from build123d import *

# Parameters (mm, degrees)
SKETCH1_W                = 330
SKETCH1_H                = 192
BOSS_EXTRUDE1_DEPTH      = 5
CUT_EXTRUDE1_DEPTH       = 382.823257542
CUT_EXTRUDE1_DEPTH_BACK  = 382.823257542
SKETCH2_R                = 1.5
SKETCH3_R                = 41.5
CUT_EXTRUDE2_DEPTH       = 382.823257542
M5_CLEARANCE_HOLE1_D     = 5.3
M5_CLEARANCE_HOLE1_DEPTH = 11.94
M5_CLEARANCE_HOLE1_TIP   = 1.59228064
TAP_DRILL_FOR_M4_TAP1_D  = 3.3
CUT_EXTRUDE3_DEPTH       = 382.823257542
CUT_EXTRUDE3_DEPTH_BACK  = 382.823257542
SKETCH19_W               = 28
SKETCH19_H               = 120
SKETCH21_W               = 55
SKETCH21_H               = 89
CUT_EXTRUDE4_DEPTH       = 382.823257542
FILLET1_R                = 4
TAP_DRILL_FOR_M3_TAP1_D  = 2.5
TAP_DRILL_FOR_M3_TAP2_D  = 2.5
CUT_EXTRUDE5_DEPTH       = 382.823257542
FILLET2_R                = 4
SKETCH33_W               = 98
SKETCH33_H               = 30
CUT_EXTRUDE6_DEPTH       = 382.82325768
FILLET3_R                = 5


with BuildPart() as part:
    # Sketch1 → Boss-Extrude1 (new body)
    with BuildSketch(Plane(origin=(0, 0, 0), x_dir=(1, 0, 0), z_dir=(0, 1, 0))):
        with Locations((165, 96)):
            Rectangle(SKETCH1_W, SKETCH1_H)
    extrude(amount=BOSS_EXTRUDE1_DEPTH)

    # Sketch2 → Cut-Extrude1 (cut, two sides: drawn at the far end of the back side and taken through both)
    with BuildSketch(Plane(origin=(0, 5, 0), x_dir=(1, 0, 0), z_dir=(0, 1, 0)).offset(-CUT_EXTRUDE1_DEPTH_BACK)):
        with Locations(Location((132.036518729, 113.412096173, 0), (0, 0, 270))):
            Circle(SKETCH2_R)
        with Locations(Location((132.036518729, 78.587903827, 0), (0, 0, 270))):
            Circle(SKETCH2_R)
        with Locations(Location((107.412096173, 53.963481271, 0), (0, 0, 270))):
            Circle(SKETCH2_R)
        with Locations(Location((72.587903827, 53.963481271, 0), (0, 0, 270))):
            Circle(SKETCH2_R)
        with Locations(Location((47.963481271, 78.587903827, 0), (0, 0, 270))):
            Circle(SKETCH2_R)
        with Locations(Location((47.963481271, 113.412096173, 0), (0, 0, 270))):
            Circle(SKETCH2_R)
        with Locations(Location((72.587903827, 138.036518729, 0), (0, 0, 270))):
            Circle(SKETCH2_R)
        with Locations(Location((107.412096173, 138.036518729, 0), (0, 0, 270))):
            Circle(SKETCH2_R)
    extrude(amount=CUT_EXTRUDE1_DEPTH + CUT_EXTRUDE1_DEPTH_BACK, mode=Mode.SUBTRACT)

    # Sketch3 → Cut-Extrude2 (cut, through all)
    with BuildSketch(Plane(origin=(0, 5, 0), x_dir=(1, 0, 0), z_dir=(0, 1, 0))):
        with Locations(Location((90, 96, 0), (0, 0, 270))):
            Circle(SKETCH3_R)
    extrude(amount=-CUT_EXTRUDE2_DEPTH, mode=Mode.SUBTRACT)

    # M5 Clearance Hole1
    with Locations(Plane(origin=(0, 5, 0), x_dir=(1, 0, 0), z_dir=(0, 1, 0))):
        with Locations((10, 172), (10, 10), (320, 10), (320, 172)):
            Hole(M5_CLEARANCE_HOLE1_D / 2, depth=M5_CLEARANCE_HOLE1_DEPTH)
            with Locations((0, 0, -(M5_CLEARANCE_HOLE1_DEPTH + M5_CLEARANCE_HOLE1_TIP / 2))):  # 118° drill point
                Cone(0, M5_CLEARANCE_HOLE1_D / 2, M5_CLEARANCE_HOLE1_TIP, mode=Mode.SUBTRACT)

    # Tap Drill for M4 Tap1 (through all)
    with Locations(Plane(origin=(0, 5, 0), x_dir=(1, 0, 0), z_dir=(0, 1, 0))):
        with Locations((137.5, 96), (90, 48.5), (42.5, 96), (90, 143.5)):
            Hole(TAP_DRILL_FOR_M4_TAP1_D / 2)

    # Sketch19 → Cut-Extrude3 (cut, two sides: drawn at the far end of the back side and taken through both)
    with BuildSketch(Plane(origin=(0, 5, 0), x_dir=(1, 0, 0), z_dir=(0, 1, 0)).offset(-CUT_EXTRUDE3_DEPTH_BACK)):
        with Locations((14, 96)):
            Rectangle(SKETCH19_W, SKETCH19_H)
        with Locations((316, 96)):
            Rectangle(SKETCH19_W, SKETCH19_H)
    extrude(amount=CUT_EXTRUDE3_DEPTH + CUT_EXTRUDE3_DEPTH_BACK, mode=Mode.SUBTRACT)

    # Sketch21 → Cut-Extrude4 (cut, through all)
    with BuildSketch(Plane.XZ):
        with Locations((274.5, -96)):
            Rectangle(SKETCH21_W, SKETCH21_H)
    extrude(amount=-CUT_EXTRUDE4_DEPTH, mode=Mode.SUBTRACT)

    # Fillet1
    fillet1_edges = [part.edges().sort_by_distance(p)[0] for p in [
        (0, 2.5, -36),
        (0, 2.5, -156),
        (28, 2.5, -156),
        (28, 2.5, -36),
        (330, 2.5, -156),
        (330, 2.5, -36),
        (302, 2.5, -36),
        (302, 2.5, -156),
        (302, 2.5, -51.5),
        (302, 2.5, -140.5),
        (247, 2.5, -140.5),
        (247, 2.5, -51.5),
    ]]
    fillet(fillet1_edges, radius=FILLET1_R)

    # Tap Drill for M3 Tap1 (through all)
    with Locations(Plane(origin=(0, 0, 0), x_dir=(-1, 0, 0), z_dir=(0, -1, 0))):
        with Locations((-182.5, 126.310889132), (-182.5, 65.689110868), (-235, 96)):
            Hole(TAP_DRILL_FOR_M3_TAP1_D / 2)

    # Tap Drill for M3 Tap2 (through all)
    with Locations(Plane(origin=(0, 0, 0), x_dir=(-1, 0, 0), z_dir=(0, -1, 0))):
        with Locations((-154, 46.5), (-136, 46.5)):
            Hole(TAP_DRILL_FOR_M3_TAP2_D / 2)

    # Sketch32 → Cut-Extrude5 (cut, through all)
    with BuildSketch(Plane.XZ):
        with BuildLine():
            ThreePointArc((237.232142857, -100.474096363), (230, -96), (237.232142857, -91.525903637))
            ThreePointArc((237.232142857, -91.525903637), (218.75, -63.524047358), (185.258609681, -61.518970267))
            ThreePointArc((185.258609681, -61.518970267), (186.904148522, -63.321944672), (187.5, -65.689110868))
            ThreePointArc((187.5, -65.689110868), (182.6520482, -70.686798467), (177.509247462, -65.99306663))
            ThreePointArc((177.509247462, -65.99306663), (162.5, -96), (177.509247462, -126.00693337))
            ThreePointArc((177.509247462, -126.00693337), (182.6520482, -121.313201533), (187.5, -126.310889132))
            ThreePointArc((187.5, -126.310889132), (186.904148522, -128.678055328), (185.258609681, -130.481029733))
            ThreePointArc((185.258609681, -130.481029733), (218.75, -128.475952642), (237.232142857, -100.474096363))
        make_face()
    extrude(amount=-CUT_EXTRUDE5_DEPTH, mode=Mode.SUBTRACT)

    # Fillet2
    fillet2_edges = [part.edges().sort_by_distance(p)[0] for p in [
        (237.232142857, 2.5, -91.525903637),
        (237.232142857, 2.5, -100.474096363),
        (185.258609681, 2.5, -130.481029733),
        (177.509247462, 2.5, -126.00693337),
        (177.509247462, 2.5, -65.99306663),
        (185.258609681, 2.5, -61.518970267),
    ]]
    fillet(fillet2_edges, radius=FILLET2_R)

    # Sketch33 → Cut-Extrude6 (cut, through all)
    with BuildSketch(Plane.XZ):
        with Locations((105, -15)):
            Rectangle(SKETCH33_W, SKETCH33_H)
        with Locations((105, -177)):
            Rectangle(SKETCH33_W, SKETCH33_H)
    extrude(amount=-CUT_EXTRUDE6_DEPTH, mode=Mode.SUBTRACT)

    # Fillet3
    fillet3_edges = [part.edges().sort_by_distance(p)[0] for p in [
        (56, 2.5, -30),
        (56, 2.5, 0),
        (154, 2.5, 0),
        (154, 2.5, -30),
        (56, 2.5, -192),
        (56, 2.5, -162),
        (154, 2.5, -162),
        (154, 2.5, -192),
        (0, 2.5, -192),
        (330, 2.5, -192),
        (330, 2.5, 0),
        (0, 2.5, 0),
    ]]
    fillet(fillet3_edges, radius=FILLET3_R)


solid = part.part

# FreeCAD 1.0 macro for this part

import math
import FreeCAD as App
import Part
import Sketcher
Q = App.Units.Quantity


def edges_at(feature, points):
    """Names of the edges that pass closest to the given points."""
    edges = feature.Shape.Edges
    near = lambda p: min(range(len(edges)), key=lambda i: edges[i].distToShape(Part.Vertex(*p))[0])
    return sorted({f"Edge{near(p) + 1}" for p in points})


def add_polygon(sketch, points):
    """Adds a closed chain of lines whose ends are joined by coincident constraints."""
    first, n = sketch.GeometryCount, len(points)
    for a, b in zip(points, points[1:] + points[:1]):
        sketch.addGeometry(Part.LineSegment(App.Vector(*a, 0), App.Vector(*b, 0)), False)
    for i in range(n):
        sketch.addConstraint(Sketcher.Constraint("Coincident", first + i, 2, first + (i + 1) % n, 1))

doc = App.newDocument("Part")
body = doc.addObject("PartDesign::Body", "Body")

# Sketch on XZ plane
sketch1 = doc.addObject("Sketcher::SketchObject", "Sketch")
body.addObject(sketch1)
sketch1.AttachmentSupport = (doc.XZ_Plane, [""])
sketch1.MapMode = "FlatFace"
add_polygon(sketch1, [(0, -192), (0, 0), (330, 0), (330, -192)])  # lines 0-3
sketch1.addConstraint(Sketcher.Constraint("Vertical", 0))
sketch1.addConstraint(Sketcher.Constraint("Horizontal", 1))
sketch1.addConstraint(Sketcher.Constraint("Vertical", 2))
sketch1.addConstraint(Sketcher.Constraint("Horizontal", 3))
sketch1.addConstraint(Sketcher.Constraint("Coincident", 0, 2, -1, 1))
sketch1.addConstraint(Sketcher.Constraint("DistanceX", 1, 1, 1, 2, Q("330 mm")))
sketch1.addConstraint(Sketcher.Constraint("DistanceY", 0, 1, 0, 2, Q("192 mm")))
pad1 = doc.addObject("PartDesign::Pad", "Pad")
body.addObject(pad1)
pad1.Profile = sketch1
pad1.Length = 5
pad1.Reversed = True

# Sketch on XZ plane
sketch2 = doc.addObject("Sketcher::SketchObject", "Sketch001")
body.addObject(sketch2)
sketch2.AttachmentSupport = (doc.XZ_Plane, [""])
sketch2.MapMode = "FlatFace"
sketch2.AttachmentOffset = App.Placement(App.Vector(0, 0, -5), App.Rotation())
sketch2.addGeometry(Part.Circle(App.Vector(132, -113.4, 0), App.Vector(0, 0, 1), 1.5), False)
sketch2.addGeometry(Part.Circle(App.Vector(132, -78.6, 0), App.Vector(0, 0, 1), 1.5), False)
sketch2.addGeometry(Part.Circle(App.Vector(107.4, -54, 0), App.Vector(0, 0, 1), 1.5), False)
sketch2.addGeometry(Part.Circle(App.Vector(72.6, -54, 0), App.Vector(0, 0, 1), 1.5), False)
sketch2.addGeometry(Part.Circle(App.Vector(48, -78.6, 0), App.Vector(0, 0, 1), 1.5), False)
sketch2.addGeometry(Part.Circle(App.Vector(48, -113.4, 0), App.Vector(0, 0, 1), 1.5), False)
sketch2.addGeometry(Part.Circle(App.Vector(72.6, -138, 0), App.Vector(0, 0, 1), 1.5), False)
sketch2.addGeometry(Part.Circle(App.Vector(107.4, -138, 0), App.Vector(0, 0, 1), 1.5), False)
sketch2.addConstraint(Sketcher.Constraint("Equal", 0, 1))
sketch2.addConstraint(Sketcher.Constraint("Equal", 1, 2))
sketch2.addConstraint(Sketcher.Constraint("Equal", 2, 3))
sketch2.addConstraint(Sketcher.Constraint("Equal", 3, 4))
sketch2.addConstraint(Sketcher.Constraint("Equal", 4, 5))
sketch2.addConstraint(Sketcher.Constraint("Equal", 5, 6))
sketch2.addConstraint(Sketcher.Constraint("Equal", 6, 7))
sketch2.addConstraint(Sketcher.Constraint("Horizontal", 2, 3, 3, 3))
sketch2.addConstraint(Sketcher.Constraint("Horizontal", 1, 3, 4, 3))
sketch2.addConstraint(Sketcher.Constraint("Horizontal", 0, 3, 5, 3))
sketch2.addConstraint(Sketcher.Constraint("Horizontal", 6, 3, 7, 3))
sketch2.addConstraint(Sketcher.Constraint("Vertical", 0, 3, 1, 3))
sketch2.addConstraint(Sketcher.Constraint("Vertical", 4, 3, 5, 3))
sketch2.addConstraint(Sketcher.Constraint("Vertical", 3, 3, 6, 3))
sketch2.addConstraint(Sketcher.Constraint("Vertical", 2, 3, 7, 3))
sketch2.addConstraint(Sketcher.Constraint("Diameter", 0, Q("3 mm")))
sketch2.addConstraint(Sketcher.Constraint("DistanceX", -1, 1, 0, 3, Q("132.036519 mm")))
sketch2.addConstraint(Sketcher.Constraint("DistanceY", 2, 3, -1, 1, Q("53.963481 mm")))
sketch2.addConstraint(Sketcher.Constraint("DistanceX", -1, 1, 4, 3, Q("47.963481 mm")))
sketch2.addConstraint(Sketcher.Constraint("DistanceY", 6, 3, -1, 1, Q("138.036519 mm")))
sketch2.addConstraint(Sketcher.Constraint("DistanceY", 0, 3, -1, 1, Q("113.412096 mm")))
sketch2.addConstraint(Sketcher.Constraint("DistanceY", 1, 3, -1, 1, Q("78.587904 mm")))
sketch2.addConstraint(Sketcher.Constraint("DistanceX", -1, 1, 2, 3, Q("107.412096 mm")))
sketch2.addConstraint(Sketcher.Constraint("DistanceX", -1, 1, 3, 3, Q("72.587904 mm")))
pocket1 = doc.addObject("PartDesign::Pocket", "Pocket")
body.addObject(pocket1)
pocket1.Profile = sketch2
pocket1.Type = "ThroughAll"
pocket1.Midplane = True

# Sketch on XZ plane
sketch3 = doc.addObject("Sketcher::SketchObject", "Sketch002")
body.addObject(sketch3)
sketch3.AttachmentSupport = (doc.XZ_Plane, [""])
sketch3.MapMode = "FlatFace"
sketch3.AttachmentOffset = App.Placement(App.Vector(0, 0, -5), App.Rotation())
sketch3.addGeometry(Part.Circle(App.Vector(90, -96, 0), App.Vector(0, 0, 1), 42), False)
sketch3.addConstraint(Sketcher.Constraint("Diameter", 0, Q("83 mm")))
sketch3.addConstraint(Sketcher.Constraint("DistanceX", -1, 1, 0, 3, Q("90 mm")))
sketch3.addConstraint(Sketcher.Constraint("DistanceY", 0, 3, -1, 1, Q("96 mm")))
pocket2 = doc.addObject("PartDesign::Pocket", "Pocket001")
body.addObject(pocket2)
pocket2.Profile = sketch3
pocket2.Type = "ThroughAll"
pocket2.Reversed = True

# Sketch on XZ plane
sketch4 = doc.addObject("Sketcher::SketchObject", "Sketch003")
body.addObject(sketch4)
sketch4.AttachmentSupport = (doc.XZ_Plane, [""])
sketch4.MapMode = "FlatFace"
sketch4.AttachmentOffset = App.Placement(App.Vector(0, 0, -5), App.Rotation())
sketch4.addGeometry(Part.Circle(App.Vector(10, -172, 0), App.Vector(0, 0, 1), 2.6), False)
sketch4.addGeometry(Part.Circle(App.Vector(10, -10, 0), App.Vector(0, 0, 1), 2.6), False)
sketch4.addGeometry(Part.Circle(App.Vector(320, -10, 0), App.Vector(0, 0, 1), 2.6), False)
sketch4.addGeometry(Part.Circle(App.Vector(320, -172, 0), App.Vector(0, 0, 1), 2.6), False)
sketch4.addConstraint(Sketcher.Constraint("Equal", 0, 1))
sketch4.addConstraint(Sketcher.Constraint("Equal", 1, 2))
sketch4.addConstraint(Sketcher.Constraint("Equal", 2, 3))
sketch4.addConstraint(Sketcher.Constraint("Horizontal", 1, 3, 2, 3))
sketch4.addConstraint(Sketcher.Constraint("Horizontal", 0, 3, 3, 3))
sketch4.addConstraint(Sketcher.Constraint("Vertical", 0, 3, 1, 3))
sketch4.addConstraint(Sketcher.Constraint("Vertical", 2, 3, 3, 3))
sketch4.addConstraint(Sketcher.Constraint("Diameter", 0, Q("5.3 mm")))
sketch4.addConstraint(Sketcher.Constraint("DistanceX", -1, 1, 0, 3, Q("10 mm")))
sketch4.addConstraint(Sketcher.Constraint("DistanceY", 0, 3, -1, 1, Q("172 mm")))
sketch4.addConstraint(Sketcher.Constraint("DistanceY", 1, 3, -1, 1, Q("10 mm")))
sketch4.addConstraint(Sketcher.Constraint("DistanceX", -1, 1, 2, 3, Q("320 mm")))
doc.recompute()
hole = doc.addObject("PartDesign::Hole", "Hole")
body.addObject(hole)
hole.Profile = sketch4
hole.ThreadType = "None"
hole.Diameter = 5.3
hole.DepthType = "Dimension"
hole.Depth = 11.94
hole.DrillPoint = "Angled"
hole.DrillPointAngle = 118
hole.Reversed = True

# Sketch on XZ plane
sketch5 = doc.addObject("Sketcher::SketchObject", "Sketch004")
body.addObject(sketch5)
sketch5.AttachmentSupport = (doc.XZ_Plane, [""])
sketch5.MapMode = "FlatFace"
sketch5.AttachmentOffset = App.Placement(App.Vector(0, 0, -5), App.Rotation())
sketch5.addGeometry(Part.Circle(App.Vector(137.5, -96, 0), App.Vector(0, 0, 1), 1.6), False)
sketch5.addGeometry(Part.Circle(App.Vector(90, -48.5, 0), App.Vector(0, 0, 1), 1.6), False)
sketch5.addGeometry(Part.Circle(App.Vector(42.5, -96, 0), App.Vector(0, 0, 1), 1.6), False)
sketch5.addGeometry(Part.Circle(App.Vector(90, -143.5, 0), App.Vector(0, 0, 1), 1.6), False)
sketch5.addConstraint(Sketcher.Constraint("Equal", 0, 1))
sketch5.addConstraint(Sketcher.Constraint("Equal", 1, 2))
sketch5.addConstraint(Sketcher.Constraint("Equal", 2, 3))
sketch5.addConstraint(Sketcher.Constraint("Horizontal", 0, 3, 2, 3))
sketch5.addConstraint(Sketcher.Constraint("Vertical", 1, 3, 3, 3))
sketch5.addConstraint(Sketcher.Constraint("Diameter", 0, Q("3.3 mm")))
sketch5.addConstraint(Sketcher.Constraint("DistanceY", 0, 3, -1, 1, Q("96 mm")))
sketch5.addConstraint(Sketcher.Constraint("DistanceX", -1, 1, 1, 3, Q("90 mm")))
sketch5.addConstraint(Sketcher.Constraint("DistanceX", 2, 3, 0, 3, Q("95 mm")))
sketch5.addConstraint(Sketcher.Constraint("DistanceY", 3, 3, 1, 3, Q("95 mm")))
sketch5.addConstraint(Sketcher.Constraint("DistanceX", -1, 1, 0, 3, Q("137.5 mm")))
sketch5.addConstraint(Sketcher.Constraint("DistanceY", 1, 3, -1, 1, Q("48.5 mm")))
doc.recompute()
hole2 = doc.addObject("PartDesign::Hole", "Hole001")
body.addObject(hole2)
hole2.Profile = sketch5
hole2.ThreadType = "None"
hole2.Diameter = 3.3
hole2.DepthType = "ThroughAll"
hole2.Reversed = True

# Sketch on XZ plane
sketch6 = doc.addObject("Sketcher::SketchObject", "Sketch005")
body.addObject(sketch6)
sketch6.AttachmentSupport = (doc.XZ_Plane, [""])
sketch6.MapMode = "FlatFace"
sketch6.AttachmentOffset = App.Placement(App.Vector(0, 0, -5), App.Rotation())
add_polygon(sketch6, [(0, -156), (0, -36), (28, -36), (28, -156)])  # lines 0-3
add_polygon(sketch6, [(302, -156), (302, -36), (330, -36), (330, -156)])  # lines 4-7
sketch6.addConstraint(Sketcher.Constraint("Vertical", 0))
sketch6.addConstraint(Sketcher.Constraint("Horizontal", 1))
sketch6.addConstraint(Sketcher.Constraint("Vertical", 2))
sketch6.addConstraint(Sketcher.Constraint("Horizontal", 3))
sketch6.addConstraint(Sketcher.Constraint("Vertical", 4))
sketch6.addConstraint(Sketcher.Constraint("Horizontal", 5))
sketch6.addConstraint(Sketcher.Constraint("Vertical", 6))
sketch6.addConstraint(Sketcher.Constraint("Horizontal", 7))
sketch6.addConstraint(Sketcher.Constraint("PointOnObject", 0, 2, -2))
sketch6.addConstraint(Sketcher.Constraint("Horizontal", 1, 2, 4, 2))
sketch6.addConstraint(Sketcher.Constraint("Horizontal", 3, 2, 6, 2))
sketch6.addConstraint(Sketcher.Constraint("Equal", 3, 5))
sketch6.addConstraint(Sketcher.Constraint("DistanceX", 1, 1, 1, 2, Q("28 mm")))
sketch6.addConstraint(Sketcher.Constraint("DistanceY", 0, 1, 0, 2, Q("120 mm")))
sketch6.addConstraint(Sketcher.Constraint("DistanceY", 0, 2, -1, 1, Q("36 mm")))
sketch6.addConstraint(Sketcher.Constraint("DistanceX", -1, 1, 4, 2, Q("302 mm")))
pocket3 = doc.addObject("PartDesign::Pocket", "Pocket002")
body.addObject(pocket3)
pocket3.Profile = sketch6
pocket3.Type = "ThroughAll"
pocket3.Midplane = True

# Sketch on XZ plane
sketch7 = doc.addObject("Sketcher::SketchObject", "Sketch006")
body.addObject(sketch7)
sketch7.AttachmentSupport = (doc.XZ_Plane, [""])
sketch7.MapMode = "FlatFace"
add_polygon(sketch7, [(247, -52), (247, -140), (302, -140), (302, -52)])  # lines 0-3
sketch7.addConstraint(Sketcher.Constraint("Vertical", 0))
sketch7.addConstraint(Sketcher.Constraint("Horizontal", 1))
sketch7.addConstraint(Sketcher.Constraint("Vertical", 2))
sketch7.addConstraint(Sketcher.Constraint("Horizontal", 3))
sketch7.addConstraint(Sketcher.Constraint("DistanceX", 1, 1, 1, 2, Q("55 mm")))
sketch7.addConstraint(Sketcher.Constraint("DistanceY", 0, 2, 0, 1, Q("89 mm")))
sketch7.addConstraint(Sketcher.Constraint("DistanceX", -1, 1, 0, 2, Q("247 mm")))
sketch7.addConstraint(Sketcher.Constraint("DistanceY", 0, 2, -1, 1, Q("140.5 mm")))
pocket4 = doc.addObject("PartDesign::Pocket", "Pocket003")
body.addObject(pocket4)
pocket4.Profile = sketch7
pocket4.Type = "ThroughAll"
doc.recompute()

fillet = doc.addObject("PartDesign::Fillet", "Fillet")
body.addObject(fillet)
fillet.Base = (pocket4, edges_at(pocket4, [
    (0, 2.5, -36),
    (0, 2.5, -156),
    (28, 2.5, -156),
    (28, 2.5, -36),
    (330, 2.5, -156),
    (330, 2.5, -36),
    (302, 2.5, -36),
    (302, 2.5, -156),
    (302, 2.5, -51.5),
    (302, 2.5, -140.5),
    (247, 2.5, -140.5),
    (247, 2.5, -51.5),
]))
fillet.Radius = 4

# Sketch on XZ plane
sketch8 = doc.addObject("Sketcher::SketchObject", "Sketch007")
body.addObject(sketch8)
sketch8.AttachmentSupport = (doc.XZ_Plane, [""])
sketch8.MapMode = "FlatFace"
sketch8.addGeometry(Part.Circle(App.Vector(182.5, -126.3, 0), App.Vector(0, 0, 1), 1.2), False)
sketch8.addGeometry(Part.Circle(App.Vector(182.5, -65.7, 0), App.Vector(0, 0, 1), 1.2), False)
sketch8.addGeometry(Part.Circle(App.Vector(235, -96, 0), App.Vector(0, 0, 1), 1.2), False)
sketch8.addConstraint(Sketcher.Constraint("Equal", 0, 1))
sketch8.addConstraint(Sketcher.Constraint("Equal", 1, 2))
sketch8.addConstraint(Sketcher.Constraint("Vertical", 0, 3, 1, 3))
sketch8.addConstraint(Sketcher.Constraint("Diameter", 0, Q("2.5 mm")))
sketch8.addConstraint(Sketcher.Constraint("DistanceX", -1, 1, 2, 3, Q("235 mm")))
sketch8.addConstraint(Sketcher.Constraint("DistanceY", 2, 3, -1, 1, Q("96 mm")))
sketch8.addConstraint(Sketcher.Constraint("DistanceX", -1, 1, 0, 3, Q("182.5 mm")))
sketch8.addConstraint(Sketcher.Constraint("DistanceY", 0, 3, -1, 1, Q("126.310889 mm")))
sketch8.addConstraint(Sketcher.Constraint("DistanceY", 1, 3, -1, 1, Q("65.689111 mm")))
doc.recompute()
hole3 = doc.addObject("PartDesign::Hole", "Hole002")
body.addObject(hole3)
hole3.Profile = sketch8
hole3.ThreadType = "None"
hole3.Diameter = 2.5
hole3.DepthType = "ThroughAll"

# Sketch on XZ plane
sketch9 = doc.addObject("Sketcher::SketchObject", "Sketch008")
body.addObject(sketch9)
sketch9.AttachmentSupport = (doc.XZ_Plane, [""])
sketch9.MapMode = "FlatFace"
sketch9.addGeometry(Part.Circle(App.Vector(154, -46.5, 0), App.Vector(0, 0, 1), 1.2), False)
sketch9.addGeometry(Part.Circle(App.Vector(136, -46.5, 0), App.Vector(0, 0, 1), 1.2), False)
sketch9.addConstraint(Sketcher.Constraint("Equal", 0, 1))
sketch9.addConstraint(Sketcher.Constraint("Horizontal", 0, 3, 1, 3))
sketch9.addConstraint(Sketcher.Constraint("Diameter", 0, Q("2.5 mm")))
sketch9.addConstraint(Sketcher.Constraint("DistanceX", -1, 1, 0, 3, Q("154 mm")))
sketch9.addConstraint(Sketcher.Constraint("DistanceX", -1, 1, 1, 3, Q("136 mm")))
sketch9.addConstraint(Sketcher.Constraint("DistanceY", 0, 3, -1, 1, Q("46.5 mm")))
doc.recompute()
hole4 = doc.addObject("PartDesign::Hole", "Hole003")
body.addObject(hole4)
hole4.Profile = sketch9
hole4.ThreadType = "None"
hole4.Diameter = 2.5
hole4.DepthType = "ThroughAll"

# Sketch on XZ plane
sketch10 = doc.addObject("Sketcher::SketchObject", "Sketch009")
body.addObject(sketch10)
sketch10.AttachmentSupport = (doc.XZ_Plane, [""])
sketch10.MapMode = "FlatFace"
sketch10.addGeometry(Part.ArcOfCircle(Part.Circle(App.Vector(235, -96, 0), App.Vector(0, 0, 1), 5), math.radians(63), math.radians(297)), False)
sketch10.addGeometry(Part.ArcOfCircle(Part.Circle(App.Vector(200, -96, 0), App.Vector(0, 0, 1), 37.5), math.radians(7), math.radians(113)), False)
sketch10.addGeometry(Part.ArcOfCircle(Part.Circle(App.Vector(182.5, -65.7, 0), App.Vector(0, 0, 1), 5), math.radians(0), math.radians(57)), False)
sketch10.addGeometry(Part.ArcOfCircle(Part.Circle(App.Vector(182.5, -65.7, 0), App.Vector(0, 0, 1), 5), math.radians(-177), math.radians(0)), False)
sketch10.addGeometry(Part.ArcOfCircle(Part.Circle(App.Vector(200, -96, 0), App.Vector(0, 0, 1), 37.5), math.radians(127), math.radians(233)), False)
sketch10.addGeometry(Part.ArcOfCircle(Part.Circle(App.Vector(182.5, -126.3, 0), App.Vector(0, 0, 1), 5), math.radians(0), math.radians(177)), False)
sketch10.addGeometry(Part.ArcOfCircle(Part.Circle(App.Vector(182.5, -126.3, 0), App.Vector(0, 0, 1), 5), math.radians(-57), math.radians(0)), False)
sketch10.addGeometry(Part.ArcOfCircle(Part.Circle(App.Vector(200, -96, 0), App.Vector(0, 0, 1), 37.5), math.radians(-113), math.radians(-7)), False)
sketch10.addConstraint(Sketcher.Constraint("Coincident", 0, 1, 1, 1))
sketch10.addConstraint(Sketcher.Constraint("Coincident", 1, 2, 2, 2))
sketch10.addConstraint(Sketcher.Constraint("Tangent", 2, 1, 3, 2))
sketch10.addConstraint(Sketcher.Constraint("Coincident", 3, 1, 4, 1))
sketch10.addConstraint(Sketcher.Constraint("Coincident", 4, 2, 5, 2))
sketch10.addConstraint(Sketcher.Constraint("Tangent", 5, 1, 6, 2))
sketch10.addConstraint(Sketcher.Constraint("Coincident", 6, 1, 7, 1))
sketch10.addConstraint(Sketcher.Constraint("Coincident", 7, 2, 0, 2))
sketch10.addConstraint(Sketcher.Constraint("Coincident", 4, 3, 1, 3))
sketch10.addConstraint(Sketcher.Constraint("Coincident", 7, 3, 1, 3))
sketch10.addConstraint(Sketcher.Constraint("Equal", 0, 2))
sketch10.addConstraint(Sketcher.Constraint("Equal", 2, 3))
sketch10.addConstraint(Sketcher.Constraint("Equal", 1, 4))
sketch10.addConstraint(Sketcher.Constraint("Equal", 3, 5))
sketch10.addConstraint(Sketcher.Constraint("Equal", 5, 6))
sketch10.addConstraint(Sketcher.Constraint("Equal", 4, 7))
sketch10.addConstraint(Sketcher.Constraint("Horizontal", 0, 3, 1, 3))
sketch10.addConstraint(Sketcher.Constraint("Horizontal", 3, 3, 2, 1))
sketch10.addConstraint(Sketcher.Constraint("Horizontal", 6, 3, 5, 1))
sketch10.addConstraint(Sketcher.Constraint("Vertical", 3, 3, 5, 3))
sketch10.addConstraint(Sketcher.Constraint("Vertical", 3, 1, 4, 2))
sketch10.addConstraint(Sketcher.Constraint("Radius", 0, Q("5 mm")))
sketch10.addConstraint(Sketcher.Constraint("Radius", 1, Q("37.5 mm")))
sketch10.addConstraint(Sketcher.Constraint("DistanceX", -1, 1, 0, 3, Q("235 mm")))
sketch10.addConstraint(Sketcher.Constraint("DistanceY", 0, 3, -1, 1, Q("96 mm")))
sketch10.addConstraint(Sketcher.Constraint("DistanceX", -1, 1, 1, 3, Q("200 mm")))
sketch10.addConstraint(Sketcher.Constraint("DistanceX", -1, 1, 2, 3, Q("182.5 mm")))
sketch10.addConstraint(Sketcher.Constraint("DistanceY", 2, 3, -1, 1, Q("65.689111 mm")))
pocket5 = doc.addObject("PartDesign::Pocket", "Pocket004")
body.addObject(pocket5)
pocket5.Profile = sketch10
pocket5.Type = "ThroughAll"
doc.recompute()

fillet2 = doc.addObject("PartDesign::Fillet", "Fillet001")
body.addObject(fillet2)
fillet2.Base = (pocket5, edges_at(pocket5, [
    (237.232, 2.5, -91.526),
    (237.232, 2.5, -100.474),
    (185.259, 2.5, -130.481),
    (177.509, 2.5, -126.007),
    (177.509, 2.5, -65.993),
    (185.259, 2.5, -61.519),
]))
fillet2.Radius = 4

# Sketch on XZ plane
sketch11 = doc.addObject("Sketcher::SketchObject", "Sketch010")
body.addObject(sketch11)
sketch11.AttachmentSupport = (doc.XZ_Plane, [""])
sketch11.MapMode = "FlatFace"
add_polygon(sketch11, [(56, 0), (56, -30), (154, -30), (154, 0)])  # lines 0-3
add_polygon(sketch11, [(56, -162), (56, -192), (154, -192), (154, -162)])  # lines 4-7
sketch11.addConstraint(Sketcher.Constraint("Vertical", 0))
sketch11.addConstraint(Sketcher.Constraint("Horizontal", 1))
sketch11.addConstraint(Sketcher.Constraint("Vertical", 2))
sketch11.addConstraint(Sketcher.Constraint("Horizontal", 3))
sketch11.addConstraint(Sketcher.Constraint("Vertical", 4))
sketch11.addConstraint(Sketcher.Constraint("Horizontal", 5))
sketch11.addConstraint(Sketcher.Constraint("Vertical", 6))
sketch11.addConstraint(Sketcher.Constraint("Horizontal", 7))
sketch11.addConstraint(Sketcher.Constraint("PointOnObject", 2, 2, -1))
sketch11.addConstraint(Sketcher.Constraint("Vertical", 3, 2, 4, 2))
sketch11.addConstraint(Sketcher.Constraint("Vertical", 2, 2, 5, 2))
sketch11.addConstraint(Sketcher.Constraint("Equal", 2, 4))
sketch11.addConstraint(Sketcher.Constraint("DistanceX", 1, 1, 1, 2, Q("98 mm")))
sketch11.addConstraint(Sketcher.Constraint("DistanceY", 0, 2, 0, 1, Q("30 mm")))
sketch11.addConstraint(Sketcher.Constraint("DistanceX", -1, 1, 0, 2, Q("56 mm")))
sketch11.addConstraint(Sketcher.Constraint("DistanceY", 4, 2, -1, 1, Q("192 mm")))
pocket6 = doc.addObject("PartDesign::Pocket", "Pocket005")
body.addObject(pocket6)
pocket6.Profile = sketch11
pocket6.Type = "ThroughAll"
doc.recompute()

fillet3 = doc.addObject("PartDesign::Fillet", "Fillet002")
body.addObject(fillet3)
fillet3.Base = (pocket6, edges_at(pocket6, [
    (56, 2.5, -30),
    (56, 2.5, 0),
    (154, 2.5, 0),
    (154, 2.5, -30),
    (56, 2.5, -192),
    (56, 2.5, -162),
    (154, 2.5, -162),
    (154, 2.5, -192),
    (0, 2.5, -192),
    (330, 2.5, -192),
    (330, 2.5, 0),
    (0, 2.5, 0),
]))
fillet3.Radius = 5

doc.recompute()
